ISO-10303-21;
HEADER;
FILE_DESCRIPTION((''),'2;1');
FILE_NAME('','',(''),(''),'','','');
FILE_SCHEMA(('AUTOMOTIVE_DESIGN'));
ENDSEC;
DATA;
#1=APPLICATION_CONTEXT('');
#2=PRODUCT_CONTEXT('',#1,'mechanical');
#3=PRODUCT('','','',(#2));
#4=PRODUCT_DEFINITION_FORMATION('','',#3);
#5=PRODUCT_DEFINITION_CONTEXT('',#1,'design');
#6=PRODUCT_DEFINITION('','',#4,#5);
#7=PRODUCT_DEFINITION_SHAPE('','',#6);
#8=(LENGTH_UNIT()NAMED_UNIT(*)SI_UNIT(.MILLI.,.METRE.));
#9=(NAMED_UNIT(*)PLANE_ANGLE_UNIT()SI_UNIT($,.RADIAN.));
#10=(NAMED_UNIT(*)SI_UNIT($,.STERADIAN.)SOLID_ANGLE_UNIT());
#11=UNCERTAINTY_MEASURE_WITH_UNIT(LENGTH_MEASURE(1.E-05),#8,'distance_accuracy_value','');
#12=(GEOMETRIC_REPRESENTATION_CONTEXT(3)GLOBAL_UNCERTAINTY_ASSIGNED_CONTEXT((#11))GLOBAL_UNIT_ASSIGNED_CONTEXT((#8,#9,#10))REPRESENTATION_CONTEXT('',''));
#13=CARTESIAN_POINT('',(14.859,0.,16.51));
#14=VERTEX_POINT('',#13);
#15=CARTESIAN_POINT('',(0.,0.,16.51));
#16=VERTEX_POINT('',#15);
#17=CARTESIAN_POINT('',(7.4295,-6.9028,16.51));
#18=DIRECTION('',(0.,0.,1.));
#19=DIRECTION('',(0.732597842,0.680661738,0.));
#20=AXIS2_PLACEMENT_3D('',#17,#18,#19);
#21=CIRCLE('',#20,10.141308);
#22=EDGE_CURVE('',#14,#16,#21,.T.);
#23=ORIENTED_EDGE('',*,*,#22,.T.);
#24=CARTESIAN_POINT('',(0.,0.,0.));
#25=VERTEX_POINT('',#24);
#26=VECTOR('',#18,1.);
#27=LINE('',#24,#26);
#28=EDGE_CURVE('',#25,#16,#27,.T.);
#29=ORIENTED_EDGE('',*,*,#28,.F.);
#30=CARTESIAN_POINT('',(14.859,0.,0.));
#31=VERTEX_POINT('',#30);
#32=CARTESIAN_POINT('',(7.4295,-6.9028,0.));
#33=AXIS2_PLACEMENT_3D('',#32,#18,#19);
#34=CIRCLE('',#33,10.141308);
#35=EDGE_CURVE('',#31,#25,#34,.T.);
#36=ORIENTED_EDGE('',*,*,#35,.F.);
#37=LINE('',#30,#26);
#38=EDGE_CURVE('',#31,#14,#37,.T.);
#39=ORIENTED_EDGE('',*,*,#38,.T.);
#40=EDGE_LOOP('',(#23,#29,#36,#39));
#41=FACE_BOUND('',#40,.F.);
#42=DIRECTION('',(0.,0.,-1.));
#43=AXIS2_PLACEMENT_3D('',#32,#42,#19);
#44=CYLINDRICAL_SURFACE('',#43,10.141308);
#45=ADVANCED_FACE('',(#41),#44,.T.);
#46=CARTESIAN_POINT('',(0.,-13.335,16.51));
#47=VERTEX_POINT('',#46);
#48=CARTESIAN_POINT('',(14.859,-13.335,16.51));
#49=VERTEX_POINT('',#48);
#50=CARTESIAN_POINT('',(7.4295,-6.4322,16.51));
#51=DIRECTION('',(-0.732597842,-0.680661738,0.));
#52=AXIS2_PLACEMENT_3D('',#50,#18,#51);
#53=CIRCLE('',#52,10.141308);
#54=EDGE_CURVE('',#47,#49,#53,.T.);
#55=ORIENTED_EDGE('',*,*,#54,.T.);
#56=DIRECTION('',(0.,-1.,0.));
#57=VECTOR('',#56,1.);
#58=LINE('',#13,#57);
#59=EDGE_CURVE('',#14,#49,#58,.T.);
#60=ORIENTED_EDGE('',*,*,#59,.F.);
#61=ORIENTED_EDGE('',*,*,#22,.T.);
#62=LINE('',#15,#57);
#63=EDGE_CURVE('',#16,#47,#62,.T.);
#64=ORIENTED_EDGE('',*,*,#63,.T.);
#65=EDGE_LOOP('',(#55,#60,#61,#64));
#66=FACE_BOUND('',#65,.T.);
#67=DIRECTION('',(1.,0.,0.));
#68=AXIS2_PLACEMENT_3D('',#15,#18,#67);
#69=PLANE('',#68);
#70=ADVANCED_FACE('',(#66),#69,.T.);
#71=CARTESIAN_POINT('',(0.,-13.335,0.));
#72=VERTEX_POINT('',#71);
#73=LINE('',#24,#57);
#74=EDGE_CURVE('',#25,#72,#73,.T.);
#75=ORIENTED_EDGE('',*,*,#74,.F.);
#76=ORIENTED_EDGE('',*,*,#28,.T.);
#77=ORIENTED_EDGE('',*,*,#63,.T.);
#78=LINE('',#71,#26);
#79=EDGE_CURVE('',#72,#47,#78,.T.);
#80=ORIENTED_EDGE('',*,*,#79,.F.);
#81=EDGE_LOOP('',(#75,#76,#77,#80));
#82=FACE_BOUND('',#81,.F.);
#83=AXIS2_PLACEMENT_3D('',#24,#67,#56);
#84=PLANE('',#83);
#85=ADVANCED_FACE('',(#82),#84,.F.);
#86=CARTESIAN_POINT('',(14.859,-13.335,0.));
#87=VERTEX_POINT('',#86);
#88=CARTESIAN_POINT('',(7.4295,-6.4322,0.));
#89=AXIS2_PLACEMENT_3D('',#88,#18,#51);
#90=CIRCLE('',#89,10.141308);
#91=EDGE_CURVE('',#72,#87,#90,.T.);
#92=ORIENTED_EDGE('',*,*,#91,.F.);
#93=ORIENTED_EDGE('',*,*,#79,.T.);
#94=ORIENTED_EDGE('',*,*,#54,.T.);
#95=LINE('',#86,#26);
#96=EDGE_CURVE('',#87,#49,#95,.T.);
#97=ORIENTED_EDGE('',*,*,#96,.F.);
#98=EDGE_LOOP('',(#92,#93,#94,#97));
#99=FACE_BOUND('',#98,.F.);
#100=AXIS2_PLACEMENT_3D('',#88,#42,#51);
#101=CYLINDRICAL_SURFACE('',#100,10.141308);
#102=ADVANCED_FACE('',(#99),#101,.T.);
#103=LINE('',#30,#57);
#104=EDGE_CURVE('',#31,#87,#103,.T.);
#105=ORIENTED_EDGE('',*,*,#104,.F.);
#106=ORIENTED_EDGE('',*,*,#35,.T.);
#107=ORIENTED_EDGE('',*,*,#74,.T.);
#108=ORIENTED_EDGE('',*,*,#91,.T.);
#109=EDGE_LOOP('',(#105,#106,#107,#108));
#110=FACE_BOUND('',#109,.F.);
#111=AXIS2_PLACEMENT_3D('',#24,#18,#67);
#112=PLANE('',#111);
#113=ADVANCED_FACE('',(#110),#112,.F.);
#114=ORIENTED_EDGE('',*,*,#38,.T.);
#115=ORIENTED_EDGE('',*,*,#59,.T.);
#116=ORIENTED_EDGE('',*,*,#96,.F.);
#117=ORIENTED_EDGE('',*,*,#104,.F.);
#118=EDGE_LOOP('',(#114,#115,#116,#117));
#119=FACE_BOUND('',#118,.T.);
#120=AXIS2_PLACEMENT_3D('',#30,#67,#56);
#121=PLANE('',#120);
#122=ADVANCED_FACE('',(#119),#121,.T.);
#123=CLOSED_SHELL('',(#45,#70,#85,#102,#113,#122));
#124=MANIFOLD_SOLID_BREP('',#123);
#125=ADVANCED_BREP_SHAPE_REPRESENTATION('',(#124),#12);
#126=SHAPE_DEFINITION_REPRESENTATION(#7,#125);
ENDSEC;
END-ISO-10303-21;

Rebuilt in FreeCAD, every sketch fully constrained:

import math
import FreeCAD as App
import Part
import Sketcher

V = App.Vector
Q = App.Units.Quantity

doc = App.newDocument("Part")
body = doc.addObject("PartDesign::Body", "Body")

sketch1 = body.newObject("Sketcher::SketchObject", "Sketch")
sketch1.AttachmentSupport = (doc.getObject("XY_Plane"), [""])
sketch1.MapMode = "FlatFace"
sketch1.addGeometry([
    Part.ArcOfCircle(Part.Circle(V(7, -7, 0), V(0, 0, 1), 10), math.radians(43), math.radians(137)),
    Part.LineSegment(V(0, 0, 0), V(0, -13, 0)),
    Part.ArcOfCircle(Part.Circle(V(7, -6, 0), V(0, 0, 1), 10), math.radians(-137), math.radians(-43)),
    Part.LineSegment(V(15, -13, 0), V(15, 0, 0)),
], False)
sketch1.addConstraint([
    Sketcher.Constraint("Coincident", 0, 2, 1, 1),
    Sketcher.Constraint("Coincident", 1, 2, 2, 1),
    Sketcher.Constraint("Coincident", 2, 2, 3, 1),
    Sketcher.Constraint("Coincident", 3, 2, 0, 1),
    Sketcher.Constraint("Vertical", 1),
    Sketcher.Constraint("Vertical", 3),
    Sketcher.Constraint("Coincident", 0, 2, -1, 1),
    Sketcher.Constraint("Equal", 0, 2),
    Sketcher.Constraint("PointOnObject", 3, 2, -1),
    Sketcher.Constraint("Horizontal", 1, 2, 2, 2),
    Sketcher.Constraint("DistanceY", 1, 2, 1, 1, Q("0.525 in")),
    Sketcher.Constraint("DistanceX", -1, 1, 2, 2, Q("0.585 in")),
    Sketcher.Constraint("Radius", 0, Q("10.1413 mm")),
])
pad1 = body.newObject("PartDesign::Pad", "Pad")
pad1.Profile = sketch1
pad1.Length = Q("0.65 in")

doc.recompute()
